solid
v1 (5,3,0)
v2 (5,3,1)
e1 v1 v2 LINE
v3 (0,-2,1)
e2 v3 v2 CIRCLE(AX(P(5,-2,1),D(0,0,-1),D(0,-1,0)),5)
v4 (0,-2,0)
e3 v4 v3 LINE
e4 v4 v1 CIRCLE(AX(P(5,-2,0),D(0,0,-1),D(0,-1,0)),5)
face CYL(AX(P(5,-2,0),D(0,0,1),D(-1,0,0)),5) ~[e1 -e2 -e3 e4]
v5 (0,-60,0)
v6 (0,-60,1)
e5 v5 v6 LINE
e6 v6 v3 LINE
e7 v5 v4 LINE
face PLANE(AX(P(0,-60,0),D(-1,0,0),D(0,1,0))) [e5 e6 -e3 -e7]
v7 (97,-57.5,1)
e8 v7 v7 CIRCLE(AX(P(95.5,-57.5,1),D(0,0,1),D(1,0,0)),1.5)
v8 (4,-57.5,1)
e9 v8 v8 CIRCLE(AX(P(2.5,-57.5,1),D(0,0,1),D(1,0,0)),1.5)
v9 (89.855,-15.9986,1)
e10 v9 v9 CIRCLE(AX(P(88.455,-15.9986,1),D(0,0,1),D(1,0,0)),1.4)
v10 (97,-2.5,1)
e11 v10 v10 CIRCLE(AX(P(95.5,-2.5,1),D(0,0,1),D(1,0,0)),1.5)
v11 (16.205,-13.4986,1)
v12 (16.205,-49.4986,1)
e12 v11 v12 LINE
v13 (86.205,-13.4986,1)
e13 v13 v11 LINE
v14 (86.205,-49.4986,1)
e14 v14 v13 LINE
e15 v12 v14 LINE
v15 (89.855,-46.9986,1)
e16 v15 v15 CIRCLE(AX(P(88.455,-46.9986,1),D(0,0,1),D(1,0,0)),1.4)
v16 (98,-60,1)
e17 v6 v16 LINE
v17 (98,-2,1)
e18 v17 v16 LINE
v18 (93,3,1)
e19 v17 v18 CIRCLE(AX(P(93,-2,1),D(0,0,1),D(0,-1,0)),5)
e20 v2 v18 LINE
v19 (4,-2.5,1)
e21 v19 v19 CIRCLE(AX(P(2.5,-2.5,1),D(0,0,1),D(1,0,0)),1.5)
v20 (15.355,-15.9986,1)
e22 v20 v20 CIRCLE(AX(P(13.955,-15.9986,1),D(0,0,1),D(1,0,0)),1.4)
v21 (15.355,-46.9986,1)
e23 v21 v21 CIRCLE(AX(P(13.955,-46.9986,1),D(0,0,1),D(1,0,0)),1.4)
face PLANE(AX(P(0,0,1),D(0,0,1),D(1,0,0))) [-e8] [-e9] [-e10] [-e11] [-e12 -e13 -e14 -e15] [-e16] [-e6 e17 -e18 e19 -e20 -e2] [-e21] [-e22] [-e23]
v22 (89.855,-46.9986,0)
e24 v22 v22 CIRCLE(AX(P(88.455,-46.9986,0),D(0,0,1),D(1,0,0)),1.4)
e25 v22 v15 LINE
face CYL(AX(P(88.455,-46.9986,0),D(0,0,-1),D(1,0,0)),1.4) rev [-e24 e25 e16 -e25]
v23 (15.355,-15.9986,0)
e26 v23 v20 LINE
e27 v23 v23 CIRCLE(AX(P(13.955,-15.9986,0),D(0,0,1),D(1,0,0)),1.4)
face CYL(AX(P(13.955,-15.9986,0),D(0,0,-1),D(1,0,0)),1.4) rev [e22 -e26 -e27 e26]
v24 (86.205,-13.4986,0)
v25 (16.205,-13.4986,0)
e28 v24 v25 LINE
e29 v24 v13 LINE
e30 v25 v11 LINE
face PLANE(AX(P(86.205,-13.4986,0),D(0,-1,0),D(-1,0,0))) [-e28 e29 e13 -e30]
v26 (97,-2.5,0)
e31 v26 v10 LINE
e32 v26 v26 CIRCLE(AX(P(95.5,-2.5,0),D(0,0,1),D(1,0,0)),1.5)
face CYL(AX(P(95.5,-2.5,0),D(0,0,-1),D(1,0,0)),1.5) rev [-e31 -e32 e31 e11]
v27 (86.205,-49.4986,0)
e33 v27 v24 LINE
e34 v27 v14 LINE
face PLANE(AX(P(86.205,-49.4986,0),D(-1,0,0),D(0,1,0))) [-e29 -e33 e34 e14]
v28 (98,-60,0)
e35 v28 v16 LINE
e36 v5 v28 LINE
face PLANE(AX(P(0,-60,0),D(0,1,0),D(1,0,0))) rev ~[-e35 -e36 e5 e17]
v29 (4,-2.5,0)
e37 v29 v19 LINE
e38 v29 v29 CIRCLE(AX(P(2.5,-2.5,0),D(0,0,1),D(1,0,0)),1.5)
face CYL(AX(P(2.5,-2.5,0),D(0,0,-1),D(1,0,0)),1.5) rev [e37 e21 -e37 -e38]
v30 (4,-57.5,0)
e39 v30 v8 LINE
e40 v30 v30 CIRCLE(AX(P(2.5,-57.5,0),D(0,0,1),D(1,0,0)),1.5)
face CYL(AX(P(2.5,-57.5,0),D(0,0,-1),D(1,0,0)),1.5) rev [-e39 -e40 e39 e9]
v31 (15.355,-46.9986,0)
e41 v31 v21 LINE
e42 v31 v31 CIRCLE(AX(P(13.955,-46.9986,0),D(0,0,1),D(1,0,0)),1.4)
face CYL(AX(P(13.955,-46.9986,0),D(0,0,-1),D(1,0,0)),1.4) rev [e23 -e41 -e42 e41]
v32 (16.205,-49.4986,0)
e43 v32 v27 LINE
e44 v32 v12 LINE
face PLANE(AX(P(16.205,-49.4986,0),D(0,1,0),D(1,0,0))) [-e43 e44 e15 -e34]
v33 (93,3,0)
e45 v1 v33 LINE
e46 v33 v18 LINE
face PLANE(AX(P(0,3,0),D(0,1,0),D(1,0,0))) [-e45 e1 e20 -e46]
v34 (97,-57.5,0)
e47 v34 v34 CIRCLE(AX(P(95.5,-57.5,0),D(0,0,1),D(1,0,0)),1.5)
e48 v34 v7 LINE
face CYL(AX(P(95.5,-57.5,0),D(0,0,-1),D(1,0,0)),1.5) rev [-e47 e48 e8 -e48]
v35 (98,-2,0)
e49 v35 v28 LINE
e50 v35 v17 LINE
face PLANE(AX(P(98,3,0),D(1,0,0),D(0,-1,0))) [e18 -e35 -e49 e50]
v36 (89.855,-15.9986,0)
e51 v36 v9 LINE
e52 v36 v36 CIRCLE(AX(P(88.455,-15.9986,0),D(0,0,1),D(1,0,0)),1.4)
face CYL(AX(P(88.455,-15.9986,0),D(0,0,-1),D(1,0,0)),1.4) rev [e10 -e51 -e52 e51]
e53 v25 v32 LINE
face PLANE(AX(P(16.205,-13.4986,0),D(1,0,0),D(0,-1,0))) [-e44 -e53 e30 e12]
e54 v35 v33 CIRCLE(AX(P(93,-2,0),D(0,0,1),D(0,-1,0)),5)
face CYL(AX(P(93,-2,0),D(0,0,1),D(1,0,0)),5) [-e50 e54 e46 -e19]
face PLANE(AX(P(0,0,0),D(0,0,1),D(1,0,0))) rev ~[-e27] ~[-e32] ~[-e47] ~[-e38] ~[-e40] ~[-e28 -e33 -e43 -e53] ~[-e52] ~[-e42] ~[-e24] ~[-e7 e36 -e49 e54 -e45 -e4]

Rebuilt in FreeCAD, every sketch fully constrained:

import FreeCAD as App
import Part
import Sketcher
from FreeCAD import Vector


def edges_at(feature, points):
    """Names of the edges that pass closest to the given points."""
    edges = feature.Shape.Edges
    near = lambda p: min(range(len(edges)), key=lambda i: edges[i].distToShape(Part.Vertex(*p))[0])
    return sorted({f"Edge{near(p) + 1}" for p in points})

doc = App.newDocument("Part")
body = doc.addObject("PartDesign::Body", "Body")

sketch1 = doc.addObject("Sketcher::SketchObject", "Sketch")
body.addObject(sketch1)
sketch1.AttachmentSupport = (doc.XY_Plane, [""])
sketch1.MapMode = "FlatFace"
sketch1.addGeometry(Part.LineSegment(Vector(98, -60, 0), Vector(98, 3, 0)), False)
sketch1.addGeometry(Part.LineSegment(Vector(98, 3, 0), Vector(0, 3, 0)), False)
sketch1.addGeometry(Part.LineSegment(Vector(0, 3, 0), Vector(0, -60, 0)), False)
sketch1.addGeometry(Part.LineSegment(Vector(0, -60, 0), Vector(98, -60, 0)), False)
sketch1.addGeometry(Part.Circle(Vector(14, -47, 0), Vector(0, 0, 1), 1.4), False)
sketch1.addGeometry(Part.Circle(Vector(88.5, -47, 0), Vector(0, 0, 1), 1.4), False)
sketch1.addGeometry(Part.LineSegment(Vector(86.2, -49.5, 0), Vector(16.2, -49.5, 0)), False)
sketch1.addGeometry(Part.LineSegment(Vector(16.2, -49.5, 0), Vector(16.2, -13.5, 0)), False)
sketch1.addGeometry(Part.LineSegment(Vector(16.2, -13.5, 0), Vector(86.2, -13.5, 0)), False)
sketch1.addGeometry(Part.LineSegment(Vector(86.2, -13.5, 0), Vector(86.2, -49.5, 0)), False)
sketch1.addGeometry(Part.Circle(Vector(14, -16, 0), Vector(0, 0, 1), 1.4), False)
sketch1.addGeometry(Part.Circle(Vector(88.5, -16, 0), Vector(0, 0, 1), 1.4), False)
sketch1.addGeometry(Part.Circle(Vector(2.5, -57.5, 0), Vector(0, 0, 1), 1.5), False)
sketch1.addGeometry(Part.Circle(Vector(95.5, -57.5, 0), Vector(0, 0, 1), 1.5), False)
sketch1.addGeometry(Part.Circle(Vector(2.5, -2.5, 0), Vector(0, 0, 1), 1.5), False)
sketch1.addGeometry(Part.Circle(Vector(95.5, -2.5, 0), Vector(0, 0, 1), 1.5), False)
sketch1.addConstraint(Sketcher.Constraint("Coincident", 0, 2, 1, 1))
sketch1.addConstraint(Sketcher.Constraint("Coincident", 1, 2, 2, 1))
sketch1.addConstraint(Sketcher.Constraint("Coincident", 2, 2, 3, 1))
sketch1.addConstraint(Sketcher.Constraint("Coincident", 3, 2, 0, 1))
sketch1.addConstraint(Sketcher.Constraint("Coincident", 6, 2, 7, 1))
sketch1.addConstraint(Sketcher.Constraint("Coincident", 7, 2, 8, 1))
sketch1.addConstraint(Sketcher.Constraint("Coincident", 8, 2, 9, 1))
sketch1.addConstraint(Sketcher.Constraint("Coincident", 9, 2, 6, 1))
sketch1.addConstraint(Sketcher.Constraint("Vertical", 0))
sketch1.addConstraint(Sketcher.Constraint("Horizontal", 1))
sketch1.addConstraint(Sketcher.Constraint("Vertical", 2))
sketch1.addConstraint(Sketcher.Constraint("Horizontal", 3))
sketch1.addConstraint(Sketcher.Constraint("Horizontal", 6))
sketch1.addConstraint(Sketcher.Constraint("Vertical", 7))
sketch1.addConstraint(Sketcher.Constraint("Horizontal", 8))
sketch1.addConstraint(Sketcher.Constraint("Vertical", 9))
sketch1.addConstraint(Sketcher.Constraint("Equal", 4, 5))
sketch1.addConstraint(Sketcher.Constraint("Equal", 5, 10))
sketch1.addConstraint(Sketcher.Constraint("Equal", 10, 11))
sketch1.addConstraint(Sketcher.Constraint("Equal", 12, 13))
sketch1.addConstraint(Sketcher.Constraint("Equal", 13, 14))
sketch1.addConstraint(Sketcher.Constraint("Equal", 14, 15))
sketch1.addConstraint(Sketcher.Constraint("PointOnObject", 1, 2, -2))
sketch1.addConstraint(Sketcher.Constraint("Horizontal", 4, 3, 5, 3))
sketch1.addConstraint(Sketcher.Constraint("Horizontal", 10, 3, 11, 3))
sketch1.addConstraint(Sketcher.Constraint("Horizontal", 12, 3, 13, 3))
sketch1.addConstraint(Sketcher.Constraint("Horizontal", 14, 3, 15, 3))
sketch1.addConstraint(Sketcher.Constraint("Vertical", 4, 3, 10, 3))
sketch1.addConstraint(Sketcher.Constraint("Vertical", 5, 3, 11, 3))
sketch1.addConstraint(Sketcher.Constraint("Vertical", 12, 3, 14, 3))
sketch1.addConstraint(Sketcher.Constraint("Vertical", 13, 3, 15, 3))
sketch1.addConstraint(Sketcher.Constraint("Diameter", 4, 2.8))
sketch1.addConstraint(Sketcher.Constraint("DistanceX", 6, 2, 6, 1, 70.0))
sketch1.addConstraint(Sketcher.Constraint("DistanceY", 7, 1, 7, 2, 36.0))
sketch1.addConstraint(Sketcher.Constraint("Diameter", 12, 3.0))
sketch1.addConstraint(Sketcher.Constraint("DistanceY", 4, 3, 10, 3, 31.0))
sketch1.addConstraint(Sketcher.Constraint("DistanceX", 4, 3, 5, 3, 74.5))
sketch1.addConstraint(Sketcher.Constraint("DistanceX", 1, 2, 1, 1, 98.0))
sketch1.addConstraint(Sketcher.Constraint("DistanceY", 0, 1, 0, 2, 63.0))
sketch1.addConstraint(Sketcher.Constraint("DistanceY", -1, 1, 0, 2, 3.0))
sketch1.addConstraint(Sketcher.Constraint("DistanceX", 12, 3, 13, 3, 93.0))
sketch1.addConstraint(Sketcher.Constraint("DistanceY", 12, 3, 14, 3, 55.0))
sketch1.addConstraint(Sketcher.Constraint("DistanceX", -1, 1, 12, 3, 2.5))
sketch1.addConstraint(Sketcher.Constraint("DistanceY", 12, 3, -1, 1, 57.5))
sketch1.addConstraint(Sketcher.Constraint("DistanceY", 6, 2, 4, 3, 2.5))
sketch1.addConstraint(Sketcher.Constraint("DistanceX", 4, 3, 6, 2, 2.25))
sketch1.addConstraint(Sketcher.Constraint("DistanceX", -1, 1, 4, 3, 13.955))
sketch1.addConstraint(Sketcher.Constraint("DistanceY", 4, 3, -1, 1, 46.9986))
pad1 = doc.addObject("PartDesign::Pad", "Pad")
body.addObject(pad1)
pad1.Profile = sketch1
pad1.Length = 1
doc.recompute()

fillet = doc.addObject("PartDesign::Fillet", "Fillet")
body.addObject(fillet)
fillet.Base = (pad1, edges_at(pad1, [(98, 3, 0.5), (0, 3, 0.5)]))
fillet.Radius = 5

doc.recompute()
